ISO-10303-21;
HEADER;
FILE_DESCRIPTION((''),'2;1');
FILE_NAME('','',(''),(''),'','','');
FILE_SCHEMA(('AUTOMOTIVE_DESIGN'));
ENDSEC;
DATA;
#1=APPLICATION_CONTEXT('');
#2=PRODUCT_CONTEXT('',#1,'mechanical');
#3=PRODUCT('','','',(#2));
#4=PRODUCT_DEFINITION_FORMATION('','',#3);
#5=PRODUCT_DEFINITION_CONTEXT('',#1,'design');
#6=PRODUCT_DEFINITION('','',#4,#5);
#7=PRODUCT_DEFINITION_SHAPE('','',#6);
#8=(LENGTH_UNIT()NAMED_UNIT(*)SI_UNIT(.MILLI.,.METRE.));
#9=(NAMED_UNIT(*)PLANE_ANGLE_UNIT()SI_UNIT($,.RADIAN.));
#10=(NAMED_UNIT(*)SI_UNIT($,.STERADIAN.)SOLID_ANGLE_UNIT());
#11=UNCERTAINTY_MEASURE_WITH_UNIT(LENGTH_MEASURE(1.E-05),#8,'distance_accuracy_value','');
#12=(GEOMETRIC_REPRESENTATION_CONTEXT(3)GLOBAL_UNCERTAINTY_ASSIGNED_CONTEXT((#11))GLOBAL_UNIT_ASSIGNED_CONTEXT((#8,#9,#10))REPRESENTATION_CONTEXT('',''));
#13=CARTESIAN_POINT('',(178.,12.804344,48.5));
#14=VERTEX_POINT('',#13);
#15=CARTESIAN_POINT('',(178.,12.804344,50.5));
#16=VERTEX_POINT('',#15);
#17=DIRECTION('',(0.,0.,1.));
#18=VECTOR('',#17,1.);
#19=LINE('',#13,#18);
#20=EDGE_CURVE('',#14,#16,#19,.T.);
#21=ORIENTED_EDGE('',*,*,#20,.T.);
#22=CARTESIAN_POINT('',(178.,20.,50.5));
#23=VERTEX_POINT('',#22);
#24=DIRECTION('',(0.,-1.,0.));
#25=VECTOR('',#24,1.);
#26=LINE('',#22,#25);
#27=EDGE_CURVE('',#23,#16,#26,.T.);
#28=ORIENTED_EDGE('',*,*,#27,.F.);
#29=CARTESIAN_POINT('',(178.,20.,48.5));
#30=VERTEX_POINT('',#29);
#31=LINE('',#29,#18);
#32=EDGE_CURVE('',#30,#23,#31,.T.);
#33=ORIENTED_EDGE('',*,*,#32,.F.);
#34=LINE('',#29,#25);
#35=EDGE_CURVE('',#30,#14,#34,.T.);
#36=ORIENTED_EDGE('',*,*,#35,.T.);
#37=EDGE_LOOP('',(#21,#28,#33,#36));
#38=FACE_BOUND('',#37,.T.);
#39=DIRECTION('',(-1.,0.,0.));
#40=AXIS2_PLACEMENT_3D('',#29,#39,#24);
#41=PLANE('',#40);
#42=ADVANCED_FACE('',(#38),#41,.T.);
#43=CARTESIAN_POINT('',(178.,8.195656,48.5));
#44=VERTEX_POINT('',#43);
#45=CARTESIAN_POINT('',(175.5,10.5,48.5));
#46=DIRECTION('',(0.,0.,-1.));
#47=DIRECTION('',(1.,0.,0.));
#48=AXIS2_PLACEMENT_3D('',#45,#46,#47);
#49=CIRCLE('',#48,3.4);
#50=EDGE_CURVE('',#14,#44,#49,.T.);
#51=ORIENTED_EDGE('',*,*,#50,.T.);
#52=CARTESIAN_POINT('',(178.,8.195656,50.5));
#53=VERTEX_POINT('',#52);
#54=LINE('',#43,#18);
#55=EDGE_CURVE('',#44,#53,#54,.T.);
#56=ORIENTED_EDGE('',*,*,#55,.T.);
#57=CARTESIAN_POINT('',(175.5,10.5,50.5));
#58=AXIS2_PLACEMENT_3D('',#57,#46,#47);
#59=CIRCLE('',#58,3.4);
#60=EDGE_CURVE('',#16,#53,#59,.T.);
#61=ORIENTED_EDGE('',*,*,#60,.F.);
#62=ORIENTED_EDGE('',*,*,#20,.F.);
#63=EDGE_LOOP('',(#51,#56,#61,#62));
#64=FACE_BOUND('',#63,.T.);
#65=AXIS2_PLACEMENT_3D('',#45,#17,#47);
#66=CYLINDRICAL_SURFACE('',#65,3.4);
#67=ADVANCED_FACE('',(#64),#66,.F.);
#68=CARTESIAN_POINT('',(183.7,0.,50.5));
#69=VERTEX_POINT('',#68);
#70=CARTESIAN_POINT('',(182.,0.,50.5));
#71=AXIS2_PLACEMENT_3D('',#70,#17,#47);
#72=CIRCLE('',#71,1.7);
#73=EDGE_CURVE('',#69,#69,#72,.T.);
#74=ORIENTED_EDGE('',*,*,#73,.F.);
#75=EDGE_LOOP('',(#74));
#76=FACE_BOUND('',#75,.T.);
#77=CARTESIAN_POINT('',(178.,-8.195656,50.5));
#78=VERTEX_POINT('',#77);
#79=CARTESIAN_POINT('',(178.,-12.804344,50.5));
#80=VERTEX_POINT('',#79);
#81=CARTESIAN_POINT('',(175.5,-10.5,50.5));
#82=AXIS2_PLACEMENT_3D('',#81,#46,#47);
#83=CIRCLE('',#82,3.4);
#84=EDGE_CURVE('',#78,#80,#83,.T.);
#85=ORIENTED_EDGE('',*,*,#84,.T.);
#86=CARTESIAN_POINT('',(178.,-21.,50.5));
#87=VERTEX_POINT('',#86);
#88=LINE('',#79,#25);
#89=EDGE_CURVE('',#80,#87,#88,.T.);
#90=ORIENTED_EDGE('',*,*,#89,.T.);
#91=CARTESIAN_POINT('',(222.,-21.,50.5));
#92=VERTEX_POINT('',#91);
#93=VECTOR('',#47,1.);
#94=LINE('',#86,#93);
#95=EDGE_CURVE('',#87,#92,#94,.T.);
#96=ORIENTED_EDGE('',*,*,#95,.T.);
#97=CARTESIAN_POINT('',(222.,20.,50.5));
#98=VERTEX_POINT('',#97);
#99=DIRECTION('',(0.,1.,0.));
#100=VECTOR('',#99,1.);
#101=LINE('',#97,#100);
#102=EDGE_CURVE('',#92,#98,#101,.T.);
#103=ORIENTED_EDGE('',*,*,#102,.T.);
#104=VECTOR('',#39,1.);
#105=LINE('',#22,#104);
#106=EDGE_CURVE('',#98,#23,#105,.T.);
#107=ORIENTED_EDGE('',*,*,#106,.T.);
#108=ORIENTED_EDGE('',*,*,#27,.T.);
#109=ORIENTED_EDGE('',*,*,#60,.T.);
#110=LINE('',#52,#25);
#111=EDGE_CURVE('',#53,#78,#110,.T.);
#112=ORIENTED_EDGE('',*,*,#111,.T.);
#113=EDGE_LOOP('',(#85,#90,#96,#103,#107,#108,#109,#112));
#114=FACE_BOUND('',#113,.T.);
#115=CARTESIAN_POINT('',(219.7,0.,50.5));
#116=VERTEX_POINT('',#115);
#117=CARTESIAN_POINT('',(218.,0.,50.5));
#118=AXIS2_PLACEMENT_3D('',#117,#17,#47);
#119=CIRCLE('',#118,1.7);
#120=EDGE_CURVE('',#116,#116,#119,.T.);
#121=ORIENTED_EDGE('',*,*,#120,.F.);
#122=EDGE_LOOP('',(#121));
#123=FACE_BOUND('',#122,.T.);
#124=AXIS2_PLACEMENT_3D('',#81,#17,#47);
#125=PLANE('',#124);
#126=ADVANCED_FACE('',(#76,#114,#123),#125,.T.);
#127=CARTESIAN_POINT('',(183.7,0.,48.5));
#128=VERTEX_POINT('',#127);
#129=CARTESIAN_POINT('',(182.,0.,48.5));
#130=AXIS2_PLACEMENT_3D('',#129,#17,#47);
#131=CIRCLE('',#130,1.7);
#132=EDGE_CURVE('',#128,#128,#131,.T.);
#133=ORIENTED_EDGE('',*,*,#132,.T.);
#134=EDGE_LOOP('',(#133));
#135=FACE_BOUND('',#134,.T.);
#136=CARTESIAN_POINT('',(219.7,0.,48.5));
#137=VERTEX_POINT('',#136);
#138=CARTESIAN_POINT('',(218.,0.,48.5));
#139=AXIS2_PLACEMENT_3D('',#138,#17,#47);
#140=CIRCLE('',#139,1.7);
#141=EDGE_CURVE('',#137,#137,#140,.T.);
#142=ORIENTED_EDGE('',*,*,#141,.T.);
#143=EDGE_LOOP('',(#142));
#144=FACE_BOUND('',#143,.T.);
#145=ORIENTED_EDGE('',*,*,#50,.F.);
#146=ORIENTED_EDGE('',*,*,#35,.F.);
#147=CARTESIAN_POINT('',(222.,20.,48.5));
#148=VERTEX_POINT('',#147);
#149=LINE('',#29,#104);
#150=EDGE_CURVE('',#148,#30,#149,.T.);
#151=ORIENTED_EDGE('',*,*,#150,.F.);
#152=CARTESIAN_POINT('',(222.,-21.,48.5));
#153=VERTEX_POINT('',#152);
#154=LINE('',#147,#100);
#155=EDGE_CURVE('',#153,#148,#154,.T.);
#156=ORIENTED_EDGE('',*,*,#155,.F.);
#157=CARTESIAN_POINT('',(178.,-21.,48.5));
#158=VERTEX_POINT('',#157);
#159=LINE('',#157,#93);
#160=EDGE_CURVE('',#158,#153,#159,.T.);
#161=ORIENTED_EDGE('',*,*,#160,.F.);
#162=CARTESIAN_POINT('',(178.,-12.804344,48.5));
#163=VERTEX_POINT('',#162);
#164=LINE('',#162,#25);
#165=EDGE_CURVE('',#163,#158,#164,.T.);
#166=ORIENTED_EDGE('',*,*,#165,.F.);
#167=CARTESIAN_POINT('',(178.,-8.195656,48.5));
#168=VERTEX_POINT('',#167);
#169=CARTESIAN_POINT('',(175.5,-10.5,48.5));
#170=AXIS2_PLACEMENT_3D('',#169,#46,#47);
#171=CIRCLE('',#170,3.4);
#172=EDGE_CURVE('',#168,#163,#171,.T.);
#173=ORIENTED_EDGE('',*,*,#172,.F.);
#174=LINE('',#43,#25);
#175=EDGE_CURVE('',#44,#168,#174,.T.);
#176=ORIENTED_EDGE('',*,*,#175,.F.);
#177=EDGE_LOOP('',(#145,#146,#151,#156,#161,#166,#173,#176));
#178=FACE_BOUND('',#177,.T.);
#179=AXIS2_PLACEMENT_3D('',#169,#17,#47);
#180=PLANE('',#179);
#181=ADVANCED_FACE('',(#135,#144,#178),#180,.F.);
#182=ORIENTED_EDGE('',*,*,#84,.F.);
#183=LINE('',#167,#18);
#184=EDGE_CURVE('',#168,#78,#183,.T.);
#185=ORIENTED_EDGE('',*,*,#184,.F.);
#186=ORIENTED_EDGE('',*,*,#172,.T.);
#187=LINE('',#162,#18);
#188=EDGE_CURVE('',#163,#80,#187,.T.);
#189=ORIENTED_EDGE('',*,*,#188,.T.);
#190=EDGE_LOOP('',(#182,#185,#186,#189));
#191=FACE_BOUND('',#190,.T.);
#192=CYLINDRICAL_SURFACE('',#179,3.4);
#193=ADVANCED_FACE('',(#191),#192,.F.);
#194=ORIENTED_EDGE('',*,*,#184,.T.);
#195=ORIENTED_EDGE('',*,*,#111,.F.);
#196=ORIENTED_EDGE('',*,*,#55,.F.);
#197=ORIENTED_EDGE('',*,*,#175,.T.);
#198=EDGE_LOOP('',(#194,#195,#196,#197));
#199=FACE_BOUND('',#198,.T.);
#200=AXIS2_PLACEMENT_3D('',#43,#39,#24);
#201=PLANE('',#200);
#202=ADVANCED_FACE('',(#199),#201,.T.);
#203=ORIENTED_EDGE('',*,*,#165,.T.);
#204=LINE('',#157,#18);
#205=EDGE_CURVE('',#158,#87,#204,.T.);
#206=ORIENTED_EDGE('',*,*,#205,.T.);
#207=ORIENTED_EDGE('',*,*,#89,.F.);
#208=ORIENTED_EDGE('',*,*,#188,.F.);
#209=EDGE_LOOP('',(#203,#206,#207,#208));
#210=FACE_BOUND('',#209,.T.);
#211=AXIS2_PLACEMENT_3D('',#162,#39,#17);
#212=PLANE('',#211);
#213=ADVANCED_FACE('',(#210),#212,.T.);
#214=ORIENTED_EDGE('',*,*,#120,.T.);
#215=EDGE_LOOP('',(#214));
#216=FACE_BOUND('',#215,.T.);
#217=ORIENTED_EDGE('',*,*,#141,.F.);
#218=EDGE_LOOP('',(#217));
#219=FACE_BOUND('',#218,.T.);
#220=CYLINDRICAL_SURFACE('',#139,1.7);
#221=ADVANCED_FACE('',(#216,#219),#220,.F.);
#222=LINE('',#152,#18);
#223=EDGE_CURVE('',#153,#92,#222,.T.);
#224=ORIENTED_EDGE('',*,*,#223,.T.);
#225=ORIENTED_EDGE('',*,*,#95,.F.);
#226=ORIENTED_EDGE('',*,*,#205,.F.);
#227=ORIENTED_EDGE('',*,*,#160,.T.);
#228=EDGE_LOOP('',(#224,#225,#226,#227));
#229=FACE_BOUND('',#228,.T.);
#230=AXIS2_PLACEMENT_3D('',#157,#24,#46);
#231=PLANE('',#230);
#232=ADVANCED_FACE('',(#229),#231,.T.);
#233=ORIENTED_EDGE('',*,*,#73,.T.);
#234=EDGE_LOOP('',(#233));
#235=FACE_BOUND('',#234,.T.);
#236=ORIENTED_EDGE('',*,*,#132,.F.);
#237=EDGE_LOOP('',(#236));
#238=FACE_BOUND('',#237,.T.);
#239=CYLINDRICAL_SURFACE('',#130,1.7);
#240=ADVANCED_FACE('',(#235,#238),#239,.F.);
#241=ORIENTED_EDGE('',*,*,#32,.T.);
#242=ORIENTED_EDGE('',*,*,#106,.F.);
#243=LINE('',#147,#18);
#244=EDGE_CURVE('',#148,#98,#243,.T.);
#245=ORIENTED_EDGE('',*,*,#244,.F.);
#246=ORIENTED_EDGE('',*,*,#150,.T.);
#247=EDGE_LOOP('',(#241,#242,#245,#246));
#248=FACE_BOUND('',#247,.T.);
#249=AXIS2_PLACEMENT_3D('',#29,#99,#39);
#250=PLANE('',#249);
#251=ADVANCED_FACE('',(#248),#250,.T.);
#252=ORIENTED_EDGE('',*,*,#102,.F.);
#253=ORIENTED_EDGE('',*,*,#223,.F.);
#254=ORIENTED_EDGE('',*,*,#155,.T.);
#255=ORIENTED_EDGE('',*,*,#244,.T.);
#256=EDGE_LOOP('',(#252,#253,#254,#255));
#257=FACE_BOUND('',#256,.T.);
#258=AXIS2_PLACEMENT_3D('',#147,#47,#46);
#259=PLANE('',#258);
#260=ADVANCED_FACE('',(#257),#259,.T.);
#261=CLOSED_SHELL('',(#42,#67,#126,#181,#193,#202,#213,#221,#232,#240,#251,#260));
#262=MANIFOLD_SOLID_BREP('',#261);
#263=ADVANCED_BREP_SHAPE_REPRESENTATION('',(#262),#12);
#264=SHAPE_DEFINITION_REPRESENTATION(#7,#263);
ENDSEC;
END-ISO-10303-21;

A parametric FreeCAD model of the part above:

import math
import FreeCAD as App
import Part
import Sketcher
from FreeCAD import Vector

doc = App.newDocument("Part")
body = doc.addObject("PartDesign::Body", "Body")

sketch1 = doc.addObject("Sketcher::SketchObject", "Sketch")
body.addObject(sketch1)
sketch1.AttachmentSupport = (doc.XY_Plane, [""])
sketch1.MapMode = "FlatFace"
sketch1.AttachmentOffset = App.Placement(Vector(0, 0, 50.5), App.Rotation())
sketch1.addGeometry([
    Part.LineSegment(Vector(178, 8.2, 0), Vector(178, -8.2, 0)),
    Part.ArcOfCircle(Part.Circle(Vector(175.5, -10.5, 0), Vector(0, 0, 1), 3.4), math.radians(-43), math.radians(43)),
    Part.LineSegment(Vector(178, -12.8, 0), Vector(178, -21, 0)),
    Part.LineSegment(Vector(178, -21, 0), Vector(222, -21, 0)),
    Part.LineSegment(Vector(222, -21, 0), Vector(222, 20, 0)),
    Part.LineSegment(Vector(222, 20, 0), Vector(178, 20, 0)),
    Part.LineSegment(Vector(178, 20, 0), Vector(178, 12.8, 0)),
    Part.ArcOfCircle(Part.Circle(Vector(175.5, 10.5, 0), Vector(0, 0, 1), 3.4), math.radians(-43), math.radians(43)),
    Part.Circle(Vector(182, 0, 0), Vector(0, 0, 1), 1.7),
    Part.Circle(Vector(218, 0, 0), Vector(0, 0, 1), 1.7),
], False)
sketch1.addConstraint([
    Sketcher.Constraint("Coincident", 0, 2, 1, 2),
    Sketcher.Constraint("Coincident", 1, 1, 2, 1),
    Sketcher.Constraint("Coincident", 2, 2, 3, 1),
    Sketcher.Constraint("Coincident", 3, 2, 4, 1),
    Sketcher.Constraint("Coincident", 4, 2, 5, 1),
    Sketcher.Constraint("Coincident", 5, 2, 6, 1),
    Sketcher.Constraint("Coincident", 6, 2, 7, 2),
    Sketcher.Constraint("Coincident", 7, 1, 0, 1),
    Sketcher.Constraint("Vertical", 0),
    Sketcher.Constraint("Vertical", 2),
    Sketcher.Constraint("Horizontal", 3),
    Sketcher.Constraint("Vertical", 4),
    Sketcher.Constraint("Horizontal", 5),
    Sketcher.Constraint("Vertical", 6),
    Sketcher.Constraint("Equal", 1, 7),
    Sketcher.Constraint("Equal", 8, 9),
    Sketcher.Constraint("Symmetric", 1, 3, 7, 3, -1),
    Sketcher.Constraint("PointOnObject", 8, 3, -1),
    Sketcher.Constraint("PointOnObject", 9, 3, -1),
    Sketcher.Constraint("Vertical", 0, 2, 1, 1),
    Sketcher.Constraint("Vertical", 2, 2, 5, 2),
    Sketcher.Constraint("Diameter", 8, 3.4),
    Sketcher.Constraint("Radius", 1, 3.4),
    Sketcher.Constraint("DistanceX", 3, 1, 3, 2, 44.0),
    Sketcher.Constraint("DistanceY", 4, 1, 4, 2, 41.0),
    Sketcher.Constraint("DistanceX", -1, 1, 8, 3, 182.0),
    Sketcher.Constraint("DistanceX", -1, 1, 9, 3, 218.0),
    Sketcher.Constraint("DistanceX", -1, 1, 0, 2, 178.0),
    Sketcher.Constraint("DistanceY", 2, 2, -1, 1, 21.0),
    Sketcher.Constraint("DistanceY", 1, 3, 7, 3, 21.0),
    Sketcher.Constraint("DistanceX", -1, 1, 1, 3, 175.5),
])
pad1 = doc.addObject("PartDesign::Pad", "Pad")
body.addObject(pad1)
pad1.Profile = sketch1
pad1.Length = 2
pad1.Reversed = True

doc.recompute()
